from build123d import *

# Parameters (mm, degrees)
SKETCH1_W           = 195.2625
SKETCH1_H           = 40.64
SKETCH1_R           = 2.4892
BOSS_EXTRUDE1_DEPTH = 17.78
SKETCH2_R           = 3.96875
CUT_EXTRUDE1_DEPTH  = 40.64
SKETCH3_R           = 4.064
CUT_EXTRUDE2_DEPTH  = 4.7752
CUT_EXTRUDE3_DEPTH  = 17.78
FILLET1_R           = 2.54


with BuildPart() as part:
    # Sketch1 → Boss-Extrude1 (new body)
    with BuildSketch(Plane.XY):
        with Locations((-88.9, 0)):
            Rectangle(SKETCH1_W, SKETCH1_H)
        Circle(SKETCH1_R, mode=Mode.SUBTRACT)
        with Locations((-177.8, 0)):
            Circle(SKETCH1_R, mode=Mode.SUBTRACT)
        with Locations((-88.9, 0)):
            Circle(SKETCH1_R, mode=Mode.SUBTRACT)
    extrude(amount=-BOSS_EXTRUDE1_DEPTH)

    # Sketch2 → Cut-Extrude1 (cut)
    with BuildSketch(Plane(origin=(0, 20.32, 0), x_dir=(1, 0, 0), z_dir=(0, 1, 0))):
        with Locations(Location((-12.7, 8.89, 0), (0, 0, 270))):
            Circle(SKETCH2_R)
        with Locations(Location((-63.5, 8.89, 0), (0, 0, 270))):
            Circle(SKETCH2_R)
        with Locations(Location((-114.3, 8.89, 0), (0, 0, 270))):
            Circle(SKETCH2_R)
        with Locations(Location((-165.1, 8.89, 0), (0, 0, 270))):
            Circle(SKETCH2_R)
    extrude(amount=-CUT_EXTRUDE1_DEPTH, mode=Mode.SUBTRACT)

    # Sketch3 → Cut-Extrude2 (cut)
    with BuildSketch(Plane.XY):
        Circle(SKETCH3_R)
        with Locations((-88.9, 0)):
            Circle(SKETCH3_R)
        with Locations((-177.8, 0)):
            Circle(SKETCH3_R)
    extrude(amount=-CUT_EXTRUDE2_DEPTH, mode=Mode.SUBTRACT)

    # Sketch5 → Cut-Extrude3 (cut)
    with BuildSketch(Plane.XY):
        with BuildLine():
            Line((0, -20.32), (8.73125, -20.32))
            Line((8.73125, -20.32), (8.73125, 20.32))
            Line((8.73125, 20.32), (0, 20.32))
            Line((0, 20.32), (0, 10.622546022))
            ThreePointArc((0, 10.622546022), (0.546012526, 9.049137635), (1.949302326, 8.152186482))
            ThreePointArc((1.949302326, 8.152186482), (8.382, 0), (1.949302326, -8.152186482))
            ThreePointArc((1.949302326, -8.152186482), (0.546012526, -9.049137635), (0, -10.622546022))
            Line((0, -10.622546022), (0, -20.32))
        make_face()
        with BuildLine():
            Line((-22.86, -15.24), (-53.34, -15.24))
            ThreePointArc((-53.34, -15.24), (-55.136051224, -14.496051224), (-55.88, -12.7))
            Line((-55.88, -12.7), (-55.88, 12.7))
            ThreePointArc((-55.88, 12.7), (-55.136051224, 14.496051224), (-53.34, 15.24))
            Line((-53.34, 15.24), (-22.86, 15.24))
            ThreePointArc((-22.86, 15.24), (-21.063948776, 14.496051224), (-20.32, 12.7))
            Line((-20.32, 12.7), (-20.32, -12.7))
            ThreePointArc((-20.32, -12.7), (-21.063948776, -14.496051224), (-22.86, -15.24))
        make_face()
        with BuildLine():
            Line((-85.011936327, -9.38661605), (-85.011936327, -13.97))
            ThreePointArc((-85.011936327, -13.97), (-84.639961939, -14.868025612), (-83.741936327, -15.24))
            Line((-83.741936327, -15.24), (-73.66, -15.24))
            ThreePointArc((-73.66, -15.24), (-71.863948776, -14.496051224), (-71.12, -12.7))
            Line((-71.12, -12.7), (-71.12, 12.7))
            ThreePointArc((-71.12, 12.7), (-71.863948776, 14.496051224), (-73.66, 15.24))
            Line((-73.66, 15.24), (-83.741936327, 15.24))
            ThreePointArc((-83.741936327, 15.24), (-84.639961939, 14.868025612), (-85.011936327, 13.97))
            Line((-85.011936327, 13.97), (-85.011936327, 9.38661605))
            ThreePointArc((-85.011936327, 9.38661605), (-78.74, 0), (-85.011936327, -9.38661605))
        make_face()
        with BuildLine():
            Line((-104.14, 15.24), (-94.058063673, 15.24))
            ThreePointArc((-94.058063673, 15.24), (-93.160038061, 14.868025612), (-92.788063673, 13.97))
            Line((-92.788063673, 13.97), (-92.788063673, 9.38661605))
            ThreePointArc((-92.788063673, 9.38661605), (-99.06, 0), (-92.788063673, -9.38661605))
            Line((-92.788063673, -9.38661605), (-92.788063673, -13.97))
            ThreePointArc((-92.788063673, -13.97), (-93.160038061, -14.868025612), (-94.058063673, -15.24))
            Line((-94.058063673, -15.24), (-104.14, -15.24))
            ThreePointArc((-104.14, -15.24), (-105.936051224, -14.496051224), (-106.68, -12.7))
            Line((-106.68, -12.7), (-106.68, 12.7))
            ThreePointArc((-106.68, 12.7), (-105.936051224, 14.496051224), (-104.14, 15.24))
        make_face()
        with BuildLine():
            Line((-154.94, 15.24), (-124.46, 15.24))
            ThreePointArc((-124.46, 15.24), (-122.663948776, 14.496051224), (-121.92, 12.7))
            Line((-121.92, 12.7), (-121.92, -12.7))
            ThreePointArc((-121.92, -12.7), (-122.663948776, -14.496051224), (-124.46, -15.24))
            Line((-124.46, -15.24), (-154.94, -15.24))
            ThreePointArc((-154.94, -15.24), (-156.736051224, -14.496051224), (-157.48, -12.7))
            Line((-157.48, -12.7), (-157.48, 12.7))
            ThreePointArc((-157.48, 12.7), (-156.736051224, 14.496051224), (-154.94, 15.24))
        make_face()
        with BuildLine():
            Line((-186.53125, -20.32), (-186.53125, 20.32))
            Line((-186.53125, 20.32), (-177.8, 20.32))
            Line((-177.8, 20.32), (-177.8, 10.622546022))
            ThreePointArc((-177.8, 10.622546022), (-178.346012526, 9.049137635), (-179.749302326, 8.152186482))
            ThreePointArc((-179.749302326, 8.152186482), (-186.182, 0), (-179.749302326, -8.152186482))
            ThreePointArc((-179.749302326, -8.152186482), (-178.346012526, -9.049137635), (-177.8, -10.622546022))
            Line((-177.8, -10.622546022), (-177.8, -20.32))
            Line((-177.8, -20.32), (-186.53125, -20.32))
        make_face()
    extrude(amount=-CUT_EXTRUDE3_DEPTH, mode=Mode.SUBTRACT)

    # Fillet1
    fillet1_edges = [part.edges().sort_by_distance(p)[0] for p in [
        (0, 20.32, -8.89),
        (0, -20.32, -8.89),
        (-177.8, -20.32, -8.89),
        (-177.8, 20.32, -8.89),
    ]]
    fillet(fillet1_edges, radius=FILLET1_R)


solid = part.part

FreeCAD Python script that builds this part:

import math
import FreeCAD as App
import Part
import Sketcher

V = App.Vector
Q = App.Units.Quantity


def edges_at(feature, points):
    """Names of the edges that pass closest to the given points."""
    edges = feature.Shape.Edges
    near = lambda p: min(range(len(edges)), key=lambda i: edges[i].distToShape(Part.Vertex(*p))[0])
    return sorted({f"Edge{near(p) + 1}" for p in points})


def add_polygon(sketch, points):
    """Adds a closed chain of lines whose ends are joined by coincident constraints."""
    first, n = sketch.GeometryCount, len(points)
    for a, b in zip(points, points[1:] + points[:1]):
        sketch.addGeometry(Part.LineSegment(App.Vector(*a, 0), App.Vector(*b, 0)), False)
    for i in range(n):
        sketch.addConstraint(Sketcher.Constraint("Coincident", first + i, 2, first + (i + 1) % n, 1))

doc = App.newDocument("Part")
body = doc.addObject("PartDesign::Body", "Body")

# Sketch on XY plane
sketch1 = doc.addObject("Sketcher::SketchObject", "Sketch")
body.addObject(sketch1)
sketch1.AttachmentSupport = (doc.XY_Plane, [""])
sketch1.MapMode = "FlatFace"
add_polygon(sketch1, [(-186.5, 20.3), (-186.5, -20.3), (8.7, -20.3), (8.7, 20.3)])  # lines 0-3
sketch1.addGeometry(Part.Circle(V(-177.8, 0, 0), V(0, 0, 1), 2.5), False)  # 4
sketch1.addGeometry(Part.Circle(V(-88.9, 0, 0), V(0, 0, 1), 2.5), False)  # 5
sketch1.addGeometry(Part.Circle(V(0, 0, 0), V(0, 0, 1), 2.5), False)  # 6
sketch1.addConstraint(Sketcher.Constraint("Vertical", 0))
sketch1.addConstraint(Sketcher.Constraint("Horizontal", 1))
sketch1.addConstraint(Sketcher.Constraint("Vertical", 2))
sketch1.addConstraint(Sketcher.Constraint("Horizontal", 3))
sketch1.addConstraint(Sketcher.Constraint("Coincident", 6, 3, -1, 1))
sketch1.addConstraint(Sketcher.Constraint("Equal", 4, 5))
sketch1.addConstraint(Sketcher.Constraint("Equal", 5, 6))
sketch1.addConstraint(Sketcher.Constraint("PointOnObject", 4, 3, -1))
sketch1.addConstraint(Sketcher.Constraint("PointOnObject", 5, 3, -1))
sketch1.addConstraint(Sketcher.Constraint("Diameter", 4, Q("0.196 in")))
sketch1.addConstraint(Sketcher.Constraint("DistanceY", 0, 2, 0, 1, Q("1.6 in")))
sketch1.addConstraint(Sketcher.Constraint("DistanceX", 4, 3, -1, 1, Q("7 in")))
sketch1.addConstraint(Sketcher.Constraint("DistanceX", 5, 3, -1, 1, Q("3.5 in")))
sketch1.addConstraint(Sketcher.Constraint("DistanceY", 0, 2, -1, 1, Q("0.8 in")))
sketch1.addConstraint(Sketcher.Constraint("DistanceX", 1, 1, 1, 2, Q("7.6875 in")))
sketch1.addConstraint(Sketcher.Constraint("DistanceX", 0, 2, -1, 1, Q("7.34375 in")))
pad1 = doc.addObject("PartDesign::Pad", "Pad")
body.addObject(pad1)
pad1.Profile = sketch1
pad1.Length = Q("0.7 in")
pad1.Reversed = True

# Sketch on XZ plane
sketch2 = doc.addObject("Sketcher::SketchObject", "Sketch001")
body.addObject(sketch2)
sketch2.AttachmentSupport = (doc.XZ_Plane, [""])
sketch2.MapMode = "FlatFace"
sketch2.AttachmentOffset = App.Placement(V(0, 0, -0.8 * 25.4), App.Rotation())
sketch2.addGeometry(Part.Circle(V(-12.7, -8.9, 0), V(0, 0, 1), 4), False)
sketch2.addGeometry(Part.Circle(V(-63.5, -8.9, 0), V(0, 0, 1), 4), False)
sketch2.addGeometry(Part.Circle(V(-114.3, -8.9, 0), V(0, 0, 1), 4), False)
sketch2.addGeometry(Part.Circle(V(-165.1, -8.9, 0), V(0, 0, 1), 4), False)
sketch2.addConstraint(Sketcher.Constraint("Equal", 0, 1))
sketch2.addConstraint(Sketcher.Constraint("Equal", 1, 2))
sketch2.addConstraint(Sketcher.Constraint("Equal", 2, 3))
sketch2.addConstraint(Sketcher.Constraint("Horizontal", 0, 3, 1, 3))
sketch2.addConstraint(Sketcher.Constraint("Horizontal", 1, 3, 2, 3))
sketch2.addConstraint(Sketcher.Constraint("Horizontal", 2, 3, 3, 3))
sketch2.addConstraint(Sketcher.Constraint("Diameter", 0, Q("0.3125 in")))
sketch2.addConstraint(Sketcher.Constraint("DistanceX", 1, 3, 0, 3, Q("2 in")))
sketch2.addConstraint(Sketcher.Constraint("DistanceX", 2, 3, 1, 3, Q("2 in")))
sketch2.addConstraint(Sketcher.Constraint("DistanceX", 3, 3, 2, 3, Q("2 in")))
sketch2.addConstraint(Sketcher.Constraint("DistanceX", 0, 3, -1, 1, Q("0.5 in")))
sketch2.addConstraint(Sketcher.Constraint("DistanceY", 0, 3, -1, 1, Q("0.35 in")))
pocket1 = doc.addObject("PartDesign::Pocket", "Pocket")
body.addObject(pocket1)
pocket1.Profile = sketch2
pocket1.Length = Q("1.6 in")
pocket1.Reversed = True

# Sketch on XY plane
sketch3 = doc.addObject("Sketcher::SketchObject", "Sketch002")
body.addObject(sketch3)
sketch3.AttachmentSupport = (doc.XY_Plane, [""])
sketch3.MapMode = "FlatFace"
sketch3.addGeometry(Part.Circle(V(0, 0, 0), V(0, 0, 1), 4.1), False)
sketch3.addGeometry(Part.Circle(V(-88.9, 0, 0), V(0, 0, 1), 4.1), False)
sketch3.addGeometry(Part.Circle(V(-177.8, 0, 0), V(0, 0, 1), 4.1), False)
sketch3.addConstraint(Sketcher.Constraint("Coincident", 0, 3, -1, 1))
sketch3.addConstraint(Sketcher.Constraint("Equal", 0, 1))
sketch3.addConstraint(Sketcher.Constraint("Equal", 1, 2))
sketch3.addConstraint(Sketcher.Constraint("PointOnObject", 1, 3, -1))
sketch3.addConstraint(Sketcher.Constraint("PointOnObject", 2, 3, -1))
sketch3.addConstraint(Sketcher.Constraint("Diameter", 0, Q("0.32 in")))
sketch3.addConstraint(Sketcher.Constraint("DistanceX", 2, 3, -1, 1, Q("7 in")))
sketch3.addConstraint(Sketcher.Constraint("DistanceX", 1, 3, -1, 1, Q("3.5 in")))
pocket2 = doc.addObject("PartDesign::Pocket", "Pocket001")
body.addObject(pocket2)
pocket2.Profile = sketch3
pocket2.Length = Q("0.188 in")

# Sketch on XY plane
sketch4 = doc.addObject("Sketcher::SketchObject", "Sketch003")
body.addObject(sketch4)
sketch4.AttachmentSupport = (doc.XY_Plane, [""])
sketch4.MapMode = "FlatFace"
sketch4.addGeometry(Part.LineSegment(V(0, -20.3, 0), V(8.7, -20.3, 0)), False)
sketch4.addGeometry(Part.LineSegment(V(8.7, -20.3, 0), V(8.7, 20.3, 0)), False)
sketch4.addGeometry(Part.LineSegment(V(8.7, 20.3, 0), V(0, 20.3, 0)), False)
sketch4.addGeometry(Part.LineSegment(V(0, 20.3, 0), V(0, 10.6, 0)), False)
sketch4.addGeometry(Part.ArcOfCircle(Part.Circle(V(2.5, 10.6, 0), V(0, 0, 1), 2.5), math.radians(-180), math.radians(-103)), False)
sketch4.addGeometry(Part.ArcOfCircle(Part.Circle(V(0, 0, 0), V(0, 0, 1), 8.4), math.radians(-77), math.radians(77)), False)
sketch4.addGeometry(Part.ArcOfCircle(Part.Circle(V(2.5, -10.6, 0), V(0, 0, 1), 2.5), math.radians(103), math.radians(180)), False)
sketch4.addGeometry(Part.LineSegment(V(0, -10.6, 0), V(0, -20.3, 0)), False)
sketch4.addGeometry(Part.LineSegment(V(-53.3, -15.2, 0), V(-22.9, -15.2, 0)), False)
sketch4.addGeometry(Part.ArcOfCircle(Part.Circle(V(-22.9, -12.7, 0), V(0, 0, 1), 2.5), math.radians(-90), math.radians(0)), False)
sketch4.addGeometry(Part.LineSegment(V(-20.3, -12.7, 0), V(-20.3, 12.7, 0)), False)
sketch4.addGeometry(Part.ArcOfCircle(Part.Circle(V(-22.9, 12.7, 0), V(0, 0, 1), 2.5), math.radians(0), math.radians(90)), False)
sketch4.addGeometry(Part.LineSegment(V(-22.9, 15.2, 0), V(-53.3, 15.2, 0)), False)
sketch4.addGeometry(Part.ArcOfCircle(Part.Circle(V(-53.3, 12.7, 0), V(0, 0, 1), 2.5), math.radians(90), math.radians(180)), False)
sketch4.addGeometry(Part.LineSegment(V(-55.9, 12.7, 0), V(-55.9, -12.7, 0)), False)
sketch4.addGeometry(Part.ArcOfCircle(Part.Circle(V(-53.3, -12.7, 0), V(0, 0, 1), 2.5), math.radians(-180), math.radians(-90)), False)
sketch4.addGeometry(Part.LineSegment(V(-85, -9.4, 0), V(-85, -14, 0)), False)
sketch4.addGeometry(Part.ArcOfCircle(Part.Circle(V(-83.7, -14, 0), V(0, 0, 1), 1.3), math.radians(180), math.radians(270)), False)
sketch4.addGeometry(Part.LineSegment(V(-83.7, -15.2, 0), V(-73.7, -15.2, 0)), False)
sketch4.addGeometry(Part.ArcOfCircle(Part.Circle(V(-73.7, -12.7, 0), V(0, 0, 1), 2.5), math.radians(-90), math.radians(0)), False)
sketch4.addGeometry(Part.LineSegment(V(-71.1, -12.7, 0), V(-71.1, 12.7, 0)), False)
sketch4.addGeometry(Part.ArcOfCircle(Part.Circle(V(-73.7, 12.7, 0), V(0, 0, 1), 2.5), math.radians(0), math.radians(90)), False)
sketch4.addGeometry(Part.LineSegment(V(-73.7, 15.2, 0), V(-83.7, 15.2, 0)), False)
sketch4.addGeometry(Part.ArcOfCircle(Part.Circle(V(-83.7, 14, 0), V(0, 0, 1), 1.3), math.radians(90), math.radians(180)), False)
sketch4.addGeometry(Part.LineSegment(V(-85, 14, 0), V(-85, 9.4, 0)), False)
sketch4.addGeometry(Part.ArcOfCircle(Part.Circle(V(-88.9, 0, 0), V(0, 0, 1), 10.2), math.radians(-67), math.radians(67)), False)
sketch4.addGeometry(Part.LineSegment(V(-94.1, 15.2, 0), V(-104.1, 15.2, 0)), False)
sketch4.addGeometry(Part.ArcOfCircle(Part.Circle(V(-104.1, 12.7, 0), V(0, 0, 1), 2.5), math.radians(90), math.radians(180)), False)
sketch4.addGeometry(Part.LineSegment(V(-106.7, 12.7, 0), V(-106.7, -12.7, 0)), False)
sketch4.addGeometry(Part.ArcOfCircle(Part.Circle(V(-104.1, -12.7, 0), V(0, 0, 1), 2.5), math.radians(-180), math.radians(-90)), False)
sketch4.addGeometry(Part.LineSegment(V(-104.1, -15.2, 0), V(-94.1, -15.2, 0)), False)
sketch4.addGeometry(Part.ArcOfCircle(Part.Circle(V(-94.1, -14, 0), V(0, 0, 1), 1.3), math.radians(-90), math.radians(0)), False)
sketch4.addGeometry(Part.LineSegment(V(-92.8, -14, 0), V(-92.8, -9.4, 0)), False)
sketch4.addGeometry(Part.ArcOfCircle(Part.Circle(V(-88.9, 0, 0), V(0, 0, 1), 10.2), math.radians(113), math.radians(247)), False)
sketch4.addGeometry(Part.LineSegment(V(-92.8, 9.4, 0), V(-92.8, 14, 0)), False)
sketch4.addGeometry(Part.ArcOfCircle(Part.Circle(V(-94.1, 14, 0), V(0, 0, 1), 1.3), math.radians(0), math.radians(90)), False)
sketch4.addGeometry(Part.LineSegment(V(-124.5, 15.2, 0), V(-154.9, 15.2, 0)), False)
sketch4.addGeometry(Part.ArcOfCircle(Part.Circle(V(-154.9, 12.7, 0), V(0, 0, 1), 2.5), math.radians(90), math.radians(180)), False)
sketch4.addGeometry(Part.LineSegment(V(-157.5, 12.7, 0), V(-157.5, -12.7, 0)), False)
sketch4.addGeometry(Part.ArcOfCircle(Part.Circle(V(-154.9, -12.7, 0), V(0, 0, 1), 2.5), math.radians(-180), math.radians(-90)), False)
sketch4.addGeometry(Part.LineSegment(V(-154.9, -15.2, 0), V(-124.5, -15.2, 0)), False)
sketch4.addGeometry(Part.ArcOfCircle(Part.Circle(V(-124.5, -12.7, 0), V(0, 0, 1), 2.5), math.radians(-90), math.radians(0)), False)
sketch4.addGeometry(Part.LineSegment(V(-121.9, -12.7, 0), V(-121.9, 12.7, 0)), False)
sketch4.addGeometry(Part.ArcOfCircle(Part.Circle(V(-124.5, 12.7, 0), V(0, 0, 1), 2.5), math.radians(0), math.radians(90)), False)
sketch4.addGeometry(Part.LineSegment(V(-186.5, 20.3, 0), V(-186.5, -20.3, 0)), False)
sketch4.addGeometry(Part.LineSegment(V(-186.5, -20.3, 0), V(-177.8, -20.3, 0)), False)
sketch4.addGeometry(Part.LineSegment(V(-177.8, -20.3, 0), V(-177.8, -10.6, 0)), False)
sketch4.addGeometry(Part.ArcOfCircle(Part.Circle(V(-180.3, -10.6, 0), V(0, 0, 1), 2.5), math.radians(0), math.radians(77)), False)
sketch4.addGeometry(Part.ArcOfCircle(Part.Circle(V(-177.8, 0, 0), V(0, 0, 1), 8.4), math.radians(103), math.radians(257)), False)
sketch4.addGeometry(Part.ArcOfCircle(Part.Circle(V(-180.3, 10.6, 0), V(0, 0, 1), 2.5), math.radians(-77), math.radians(0)), False)
sketch4.addGeometry(Part.LineSegment(V(-177.8, 10.6, 0), V(-177.8, 20.3, 0)), False)
sketch4.addGeometry(Part.LineSegment(V(-177.8, 20.3, 0), V(-186.5, 20.3, 0)), False)
sketch4.addConstraint(Sketcher.Constraint("Coincident", 0, 2, 1, 1))
sketch4.addConstraint(Sketcher.Constraint("Coincident", 1, 2, 2, 1))
sketch4.addConstraint(Sketcher.Constraint("Coincident", 2, 2, 3, 1))
sketch4.addConstraint(Sketcher.Constraint("Tangent", 3, 2, 4, 1))
sketch4.addConstraint(Sketcher.Constraint("Tangent", 4, 2, 5, 2))
sketch4.addConstraint(Sketcher.Constraint("Tangent", 5, 1, 6, 1))
sketch4.addConstraint(Sketcher.Constraint("Tangent", 6, 2, 7, 1))
sketch4.addConstraint(Sketcher.Constraint("Coincident", 7, 2, 0, 1))
sketch4.addConstraint(Sketcher.Constraint("Tangent", 8, 2, 9, 1))
sketch4.addConstraint(Sketcher.Constraint("Tangent", 9, 2, 10, 1))
sketch4.addConstraint(Sketcher.Constraint("Tangent", 10, 2, 11, 1))
sketch4.addConstraint(Sketcher.Constraint("Tangent", 11, 2, 12, 1))
sketch4.addConstraint(Sketcher.Constraint("Tangent", 12, 2, 13, 1))
sketch4.addConstraint(Sketcher.Constraint("Tangent", 13, 2, 14, 1))
sketch4.addConstraint(Sketcher.Constraint("Tangent", 14, 2, 15, 1))
sketch4.addConstraint(Sketcher.Constraint("Tangent", 15, 2, 8, 1))
sketch4.addConstraint(Sketcher.Constraint("Tangent", 16, 2, 17, 1))
sketch4.addConstraint(Sketcher.Constraint("Tangent", 17, 2, 18, 1))
sketch4.addConstraint(Sketcher.Constraint("Tangent", 18, 2, 19, 1))
sketch4.addConstraint(Sketcher.Constraint("Tangent", 19, 2, 20, 1))
sketch4.addConstraint(Sketcher.Constraint("Tangent", 20, 2, 21, 1))
sketch4.addConstraint(Sketcher.Constraint("Tangent", 21, 2, 22, 1))
sketch4.addConstraint(Sketcher.Constraint("Tangent", 22, 2, 23, 1))
sketch4.addConstraint(Sketcher.Constraint("Tangent", 23, 2, 24, 1))
sketch4.addConstraint(Sketcher.Constraint("Coincident", 24, 2, 25, 2))
sketch4.addConstraint(Sketcher.Constraint("Coincident", 25, 1, 16, 1))
sketch4.addConstraint(Sketcher.Constraint("Tangent", 26, 2, 27, 1))
sketch4.addConstraint(Sketcher.Constraint("Tangent", 27, 2, 28, 1))
sketch4.addConstraint(Sketcher.Constraint("Tangent", 28, 2, 29, 1))
sketch4.addConstraint(Sketcher.Constraint("Tangent", 29, 2, 30, 1))
sketch4.addConstraint(Sketcher.Constraint("Tangent", 30, 2, 31, 1))
sketch4.addConstraint(Sketcher.Constraint("Tangent", 31, 2, 32, 1))
sketch4.addConstraint(Sketcher.Constraint("Coincident", 32, 2, 33, 2))
sketch4.addConstraint(Sketcher.Constraint("Coincident", 33, 1, 34, 1))
sketch4.addConstraint(Sketcher.Constraint("Tangent", 34, 2, 35, 1))
sketch4.addConstraint(Sketcher.Constraint("Tangent", 35, 2, 26, 1))
sketch4.addConstraint(Sketcher.Constraint("Tangent", 36, 2, 37, 1))
sketch4.addConstraint(Sketcher.Constraint("Tangent", 37, 2, 38, 1))
sketch4.addConstraint(Sketcher.Constraint("Tangent", 38, 2, 39, 1))
sketch4.addConstraint(Sketcher.Constraint("Tangent", 39, 2, 40, 1))
sketch4.addConstraint(Sketcher.Constraint("Tangent", 40, 2, 41, 1))
sketch4.addConstraint(Sketcher.Constraint("Tangent", 41, 2, 42, 1))
sketch4.addConstraint(Sketcher.Constraint("Tangent", 42, 2, 43, 1))
sketch4.addConstraint(Sketcher.Constraint("Tangent", 43, 2, 36, 1))
sketch4.addConstraint(Sketcher.Constraint("Coincident", 44, 2, 45, 1))
sketch4.addConstraint(Sketcher.Constraint("Coincident", 45, 2, 46, 1))
sketch4.addConstraint(Sketcher.Constraint("Tangent", 46, 2, 47, 1))
sketch4.addConstraint(Sketcher.Constraint("Tangent", 47, 2, 48, 2))
sketch4.addConstraint(Sketcher.Constraint("Tangent", 48, 1, 49, 1))
sketch4.addConstraint(Sketcher.Constraint("Tangent", 49, 2, 50, 1))
sketch4.addConstraint(Sketcher.Constraint("Coincident", 50, 2, 51, 1))
sketch4.addConstraint(Sketcher.Constraint("Coincident", 51, 2, 44, 1))
sketch4.addConstraint(Sketcher.Constraint("Horizontal", 0))
sketch4.addConstraint(Sketcher.Constraint("Vertical", 1))
sketch4.addConstraint(Sketcher.Constraint("Horizontal", 2))
sketch4.addConstraint(Sketcher.Constraint("Vertical", 3))
sketch4.addConstraint(Sketcher.Constraint("Vertical", 7))
sketch4.addConstraint(Sketcher.Constraint("Horizontal", 8))
sketch4.addConstraint(Sketcher.Constraint("Vertical", 10))
sketch4.addConstraint(Sketcher.Constraint("Horizontal", 12))
sketch4.addConstraint(Sketcher.Constraint("Vertical", 14))
sketch4.addConstraint(Sketcher.Constraint("Vertical", 16))
sketch4.addConstraint(Sketcher.Constraint("Horizontal", 18))
sketch4.addConstraint(Sketcher.Constraint("Vertical", 20))
sketch4.addConstraint(Sketcher.Constraint("Horizontal", 22))
sketch4.addConstraint(Sketcher.Constraint("Vertical", 24))
sketch4.addConstraint(Sketcher.Constraint("Horizontal", 26))
sketch4.addConstraint(Sketcher.Constraint("Vertical", 28))
sketch4.addConstraint(Sketcher.Constraint("Horizontal", 30))
sketch4.addConstraint(Sketcher.Constraint("Vertical", 32))
sketch4.addConstraint(Sketcher.Constraint("Vertical", 34))
sketch4.addConstraint(Sketcher.Constraint("Horizontal", 36))
sketch4.addConstraint(Sketcher.Constraint("Vertical", 38))
sketch4.addConstraint(Sketcher.Constraint("Horizontal", 40))
sketch4.addConstraint(Sketcher.Constraint("Vertical", 42))
sketch4.addConstraint(Sketcher.Constraint("Vertical", 44))
sketch4.addConstraint(Sketcher.Constraint("Horizontal", 45))
sketch4.addConstraint(Sketcher.Constraint("Vertical", 46))
sketch4.addConstraint(Sketcher.Constraint("Vertical", 50))
sketch4.addConstraint(Sketcher.Constraint("Horizontal", 51))
sketch4.addConstraint(Sketcher.Constraint("Coincident", 5, 3, -1, 1))
sketch4.addConstraint(Sketcher.Constraint("Coincident", 33, 3, 25, 3))
sketch4.addConstraint(Sketcher.Constraint("Equal", 4, 6))
sketch4.addConstraint(Sketcher.Constraint("Equal", 6, 9))
sketch4.addConstraint(Sketcher.Constraint("Equal", 9, 11))
sketch4.addConstraint(Sketcher.Constraint("Equal", 11, 13))
sketch4.addConstraint(Sketcher.Constraint("Equal", 13, 15))
sketch4.addConstraint(Sketcher.Constraint("Equal", 15, 19))
sketch4.addConstraint(Sketcher.Constraint("Equal", 19, 21))
sketch4.addConstraint(Sketcher.Constraint("Equal", 17, 23))
sketch4.addConstraint(Sketcher.Constraint("Equal", 21, 27))
sketch4.addConstraint(Sketcher.Constraint("Equal", 27, 29))
sketch4.addConstraint(Sketcher.Constraint("Equal", 23, 31))
sketch4.addConstraint(Sketcher.Constraint("Equal", 25, 33))
sketch4.addConstraint(Sketcher.Constraint("Equal", 31, 35))
sketch4.addConstraint(Sketcher.Constraint("Equal", 29, 37))
sketch4.addConstraint(Sketcher.Constraint("Equal", 37, 39))
sketch4.addConstraint(Sketcher.Constraint("Equal", 39, 41))
sketch4.addConstraint(Sketcher.Constraint("Equal", 41, 43))
sketch4.addConstraint(Sketcher.Constraint("Equal", 43, 47))
sketch4.addConstraint(Sketcher.Constraint("Equal", 5, 48))
sketch4.addConstraint(Sketcher.Constraint("Equal", 47, 49))
sketch4.addConstraint(Sketcher.Constraint("Symmetric", 3, 2, 6, 2, -1, 1))
sketch4.addConstraint(Sketcher.Constraint("Symmetric", 17, 3, 23, 3, -1))
sketch4.addConstraint(Sketcher.Constraint("Symmetric", 31, 3, 35, 3, -1))
sketch4.addConstraint(Sketcher.Constraint("Symmetric", 47, 3, 49, 3, -1))
sketch4.addConstraint(Sketcher.Constraint("PointOnObject", 25, 3, -1))
sketch4.addConstraint(Sketcher.Constraint("Horizontal", 15, 3, 19, 3))
sketch4.addConstraint(Sketcher.Constraint("Horizontal", 13, 3, 21, 3))
sketch4.addConstraint(Sketcher.Constraint("Horizontal", 21, 3, 27, 3))
sketch4.addConstraint(Sketcher.Constraint("Horizontal", 27, 3, 37, 3))
sketch4.addConstraint(Sketcher.Constraint("Horizontal", 29, 3, 39, 3))
sketch4.addConstraint(Sketcher.Constraint("Horizontal", 6, 3, 47, 3))
sketch4.addConstraint(Sketcher.Constraint("Horizontal", 25, 1, 32, 2))
sketch4.addConstraint(Sketcher.Constraint("Horizontal", 7, 2, 44, 2))
sketch4.addConstraint(Sketcher.Constraint("Horizontal", 2, 2, 50, 2))
sketch4.addConstraint(Sketcher.Constraint("Equal", 22, 26))
sketch4.addConstraint(Sketcher.Constraint("Equal", 12, 36))
sketch4.addConstraint(Sketcher.Constraint("Equal", 2, 45))
sketch4.addConstraint(Sketcher.Constraint("Equal", 3, 7))
sketch4.addConstraint(Sketcher.Constraint("Radius", 4, Q("0.1 in")))
sketch4.addConstraint(Sketcher.Constraint("Radius", 25, Q("0.4 in")))
sketch4.addConstraint(Sketcher.Constraint("DistanceY", 10, 1, 10, 2, Q("1 in")))
sketch4.addConstraint(Sketcher.Constraint("Radius", 5, Q("0.33 in")))
sketch4.addConstraint(Sketcher.Constraint("Radius", 17, Q("0.05 in")))
sketch4.addConstraint(Sketcher.Constraint("DistanceX", 8, 1, 8, 2, Q("1.2 in")))
sketch4.addConstraint(Sketcher.Constraint("DistanceY", 1, 1, 1, 2, Q("1.6 in")))
sketch4.addConstraint(Sketcher.Constraint("DistanceX", 48, 3, -1, 1, Q("7 in")))
sketch4.addConstraint(Sketcher.Constraint("DistanceX", 9, 3, -1, 1, Q("0.9 in")))
sketch4.addConstraint(Sketcher.Constraint("DistanceX", 19, 3, -1, 1, Q("2.9 in")))
sketch4.addConstraint(Sketcher.Constraint("DistanceX", 25, 3, -1, 1, Q("3.5 in")))
sketch4.addConstraint(Sketcher.Constraint("DistanceX", 37, 3, -1, 1, Q("6.1 in")))
sketch4.addConstraint(Sketcher.Constraint("DistanceX", 0, 1, 0, 2, Q("0.34375 in")))
sketch4.addConstraint(Sketcher.Constraint("DistanceX", 18, 1, 18, 2, 10.081936))
pocket3 = doc.addObject("PartDesign::Pocket", "Pocket002")
body.addObject(pocket3)
pocket3.Profile = sketch4
pocket3.Length = Q("0.7 in")
doc.recompute()

fillet = doc.addObject("PartDesign::Fillet", "Fillet")
body.addObject(fillet)
fillet.Base = (pocket3, edges_at(pocket3, [
    (0, 20.32, -8.89),
    (0, -20.32, -8.89),
    (-177.8, -20.32, -8.89),
    (-177.8, 20.32, -8.89),
]))
fillet.Radius = Q("0.1 in")

doc.recompute()
